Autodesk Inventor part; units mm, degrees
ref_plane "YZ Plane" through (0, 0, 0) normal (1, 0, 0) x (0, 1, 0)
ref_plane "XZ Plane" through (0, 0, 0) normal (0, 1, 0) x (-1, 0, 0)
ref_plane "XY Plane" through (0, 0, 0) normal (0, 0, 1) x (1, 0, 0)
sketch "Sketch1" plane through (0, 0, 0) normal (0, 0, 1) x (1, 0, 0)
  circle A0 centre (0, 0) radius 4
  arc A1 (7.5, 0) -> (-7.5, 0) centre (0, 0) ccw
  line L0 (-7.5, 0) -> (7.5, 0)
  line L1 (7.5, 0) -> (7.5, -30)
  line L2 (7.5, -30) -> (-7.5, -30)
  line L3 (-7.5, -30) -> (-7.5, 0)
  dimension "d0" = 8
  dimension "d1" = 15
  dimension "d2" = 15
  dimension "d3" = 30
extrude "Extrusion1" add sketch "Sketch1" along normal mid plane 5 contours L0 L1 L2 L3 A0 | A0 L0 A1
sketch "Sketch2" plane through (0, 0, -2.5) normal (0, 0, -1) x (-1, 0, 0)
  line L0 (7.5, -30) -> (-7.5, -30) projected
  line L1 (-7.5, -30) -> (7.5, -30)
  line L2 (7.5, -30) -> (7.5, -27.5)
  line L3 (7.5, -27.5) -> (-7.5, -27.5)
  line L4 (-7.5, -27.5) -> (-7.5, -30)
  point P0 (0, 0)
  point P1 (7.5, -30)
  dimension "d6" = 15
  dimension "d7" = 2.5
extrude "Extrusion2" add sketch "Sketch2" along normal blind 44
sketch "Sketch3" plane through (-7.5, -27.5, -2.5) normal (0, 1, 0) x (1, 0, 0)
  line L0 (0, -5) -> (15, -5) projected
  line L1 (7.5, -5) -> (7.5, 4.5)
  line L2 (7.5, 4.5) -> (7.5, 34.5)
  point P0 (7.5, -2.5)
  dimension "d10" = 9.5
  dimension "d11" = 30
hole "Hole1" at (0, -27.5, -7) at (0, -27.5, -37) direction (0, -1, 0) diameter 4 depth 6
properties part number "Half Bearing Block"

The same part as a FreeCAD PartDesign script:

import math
import FreeCAD as App
import Part
import Sketcher


def add_polygon(sketch, points):
    """Adds a closed chain of lines whose ends are joined by coincident constraints."""
    first, n = sketch.GeometryCount, len(points)
    for a, b in zip(points, points[1:] + points[:1]):
        sketch.addGeometry(Part.LineSegment(App.Vector(*a, 0), App.Vector(*b, 0)), False)
    for i in range(n):
        sketch.addConstraint(Sketcher.Constraint("Coincident", first + i, 2, first + (i + 1) % n, 1))

doc = App.newDocument("Part")
body = doc.addObject("PartDesign::Body", "Body")

sketch1 = doc.addObject("Sketcher::SketchObject", "Sketch")
body.addObject(sketch1)
sketch1.AttachmentSupport = (doc.XY_Plane, [""])
sketch1.MapMode = "FlatFace"
sketch1.addGeometry([
    Part.LineSegment(App.Vector(7.5, -30, 0), App.Vector(7.5, 0, 0)),
    Part.ArcOfCircle(Part.Circle(App.Vector(0, 0, 0), App.Vector(0, 0, 1), 7.5), math.radians(0), math.radians(180)),
    Part.LineSegment(App.Vector(-7.5, 0, 0), App.Vector(-7.5, -30, 0)),
    Part.LineSegment(App.Vector(-7.5, -30, 0), App.Vector(7.5, -30, 0)),
    Part.Circle(App.Vector(0, 0, 0), App.Vector(0, 0, 1), 4),
], False)
sketch1.addConstraint([
    Sketcher.Constraint("Tangent", 0, 2, 1, 1),
    Sketcher.Constraint("Tangent", 1, 2, 2, 1),
    Sketcher.Constraint("Coincident", 2, 2, 3, 1),
    Sketcher.Constraint("Coincident", 3, 2, 0, 1),
    Sketcher.Constraint("Vertical", 0),
    Sketcher.Constraint("Vertical", 2),
    Sketcher.Constraint("Horizontal", 3),
    Sketcher.Constraint("Coincident", 1, 3, -1, 1),
    Sketcher.Constraint("Coincident", 4, 3, -1, 1),
    Sketcher.Constraint("Diameter", 4, 8.0),
    Sketcher.Constraint("Radius", 1, 7.5),
    Sketcher.Constraint("DistanceY", 0, 1, 0, 2, 30.0),
])
pad1 = doc.addObject("PartDesign::Pad", "Pad")
body.addObject(pad1)
pad1.Profile = sketch1
pad1.Length = 5
pad1.Midplane = True

sketch2 = doc.addObject("Sketcher::SketchObject", "Sketch001")
body.addObject(sketch2)
sketch2.AttachmentSupport = (doc.XY_Plane, [""])
sketch2.MapMode = "FlatFace"
sketch2.AttachmentOffset = App.Placement(App.Vector(0, 0, -2.5), App.Rotation())
add_polygon(sketch2, [(7.5, -30), (-7.5, -30), (-7.5, -27.5), (7.5, -27.5)])
sketch2.addConstraint([
    Sketcher.Constraint("Horizontal", 0),
    Sketcher.Constraint("Vertical", 1),
    Sketcher.Constraint("Horizontal", 2),
    Sketcher.Constraint("Vertical", 3),
    Sketcher.Constraint("DistanceX", 0, 2, 0, 1, 15.0),
    Sketcher.Constraint("DistanceY", 1, 1, 1, 2, 2.5),
    Sketcher.Constraint("DistanceY", 0, 2, -1, 1, 30.0),
    Sketcher.Constraint("DistanceX", 0, 2, -1, 1, 7.5),
])
pad2 = doc.addObject("PartDesign::Pad", "Pad001")
body.addObject(pad2)
pad2.Profile = sketch2
pad2.Length = 44
pad2.Reversed = True

sketch3 = doc.addObject("Sketcher::SketchObject", "Sketch002")
body.addObject(sketch3)
sketch3.AttachmentSupport = (doc.XZ_Plane, [""])
sketch3.MapMode = "FlatFace"
sketch3.AttachmentOffset = App.Placement(App.Vector(0, 0, 27.5), App.Rotation())
sketch3.addGeometry([
    Part.Circle(App.Vector(0, -7, 0), App.Vector(0, 0, 1), 2),
    Part.Circle(App.Vector(0, -37, 0), App.Vector(0, 0, 1), 2),
], False)
sketch3.addConstraint([
    Sketcher.Constraint("Equal", 0, 1),
    Sketcher.Constraint("PointOnObject", 0, 3, -2),
    Sketcher.Constraint("PointOnObject", 1, 3, -2),
    Sketcher.Constraint("Diameter", 0, 4.0),
    Sketcher.Constraint("DistanceY", 0, 3, -1, 1, 7.0),
    Sketcher.Constraint("DistanceY", 1, 3, -1, 1, 37.0),
])
doc.recompute()
hole = doc.addObject("PartDesign::Hole", "Hole")
body.addObject(hole)
hole.Profile = sketch3
hole.ThreadType = "None"
hole.Diameter = 4
hole.DepthType = "Dimension"
hole.Depth = 6
hole.DrillPoint = "Flat"
hole.Reversed = True

doc.recompute()
